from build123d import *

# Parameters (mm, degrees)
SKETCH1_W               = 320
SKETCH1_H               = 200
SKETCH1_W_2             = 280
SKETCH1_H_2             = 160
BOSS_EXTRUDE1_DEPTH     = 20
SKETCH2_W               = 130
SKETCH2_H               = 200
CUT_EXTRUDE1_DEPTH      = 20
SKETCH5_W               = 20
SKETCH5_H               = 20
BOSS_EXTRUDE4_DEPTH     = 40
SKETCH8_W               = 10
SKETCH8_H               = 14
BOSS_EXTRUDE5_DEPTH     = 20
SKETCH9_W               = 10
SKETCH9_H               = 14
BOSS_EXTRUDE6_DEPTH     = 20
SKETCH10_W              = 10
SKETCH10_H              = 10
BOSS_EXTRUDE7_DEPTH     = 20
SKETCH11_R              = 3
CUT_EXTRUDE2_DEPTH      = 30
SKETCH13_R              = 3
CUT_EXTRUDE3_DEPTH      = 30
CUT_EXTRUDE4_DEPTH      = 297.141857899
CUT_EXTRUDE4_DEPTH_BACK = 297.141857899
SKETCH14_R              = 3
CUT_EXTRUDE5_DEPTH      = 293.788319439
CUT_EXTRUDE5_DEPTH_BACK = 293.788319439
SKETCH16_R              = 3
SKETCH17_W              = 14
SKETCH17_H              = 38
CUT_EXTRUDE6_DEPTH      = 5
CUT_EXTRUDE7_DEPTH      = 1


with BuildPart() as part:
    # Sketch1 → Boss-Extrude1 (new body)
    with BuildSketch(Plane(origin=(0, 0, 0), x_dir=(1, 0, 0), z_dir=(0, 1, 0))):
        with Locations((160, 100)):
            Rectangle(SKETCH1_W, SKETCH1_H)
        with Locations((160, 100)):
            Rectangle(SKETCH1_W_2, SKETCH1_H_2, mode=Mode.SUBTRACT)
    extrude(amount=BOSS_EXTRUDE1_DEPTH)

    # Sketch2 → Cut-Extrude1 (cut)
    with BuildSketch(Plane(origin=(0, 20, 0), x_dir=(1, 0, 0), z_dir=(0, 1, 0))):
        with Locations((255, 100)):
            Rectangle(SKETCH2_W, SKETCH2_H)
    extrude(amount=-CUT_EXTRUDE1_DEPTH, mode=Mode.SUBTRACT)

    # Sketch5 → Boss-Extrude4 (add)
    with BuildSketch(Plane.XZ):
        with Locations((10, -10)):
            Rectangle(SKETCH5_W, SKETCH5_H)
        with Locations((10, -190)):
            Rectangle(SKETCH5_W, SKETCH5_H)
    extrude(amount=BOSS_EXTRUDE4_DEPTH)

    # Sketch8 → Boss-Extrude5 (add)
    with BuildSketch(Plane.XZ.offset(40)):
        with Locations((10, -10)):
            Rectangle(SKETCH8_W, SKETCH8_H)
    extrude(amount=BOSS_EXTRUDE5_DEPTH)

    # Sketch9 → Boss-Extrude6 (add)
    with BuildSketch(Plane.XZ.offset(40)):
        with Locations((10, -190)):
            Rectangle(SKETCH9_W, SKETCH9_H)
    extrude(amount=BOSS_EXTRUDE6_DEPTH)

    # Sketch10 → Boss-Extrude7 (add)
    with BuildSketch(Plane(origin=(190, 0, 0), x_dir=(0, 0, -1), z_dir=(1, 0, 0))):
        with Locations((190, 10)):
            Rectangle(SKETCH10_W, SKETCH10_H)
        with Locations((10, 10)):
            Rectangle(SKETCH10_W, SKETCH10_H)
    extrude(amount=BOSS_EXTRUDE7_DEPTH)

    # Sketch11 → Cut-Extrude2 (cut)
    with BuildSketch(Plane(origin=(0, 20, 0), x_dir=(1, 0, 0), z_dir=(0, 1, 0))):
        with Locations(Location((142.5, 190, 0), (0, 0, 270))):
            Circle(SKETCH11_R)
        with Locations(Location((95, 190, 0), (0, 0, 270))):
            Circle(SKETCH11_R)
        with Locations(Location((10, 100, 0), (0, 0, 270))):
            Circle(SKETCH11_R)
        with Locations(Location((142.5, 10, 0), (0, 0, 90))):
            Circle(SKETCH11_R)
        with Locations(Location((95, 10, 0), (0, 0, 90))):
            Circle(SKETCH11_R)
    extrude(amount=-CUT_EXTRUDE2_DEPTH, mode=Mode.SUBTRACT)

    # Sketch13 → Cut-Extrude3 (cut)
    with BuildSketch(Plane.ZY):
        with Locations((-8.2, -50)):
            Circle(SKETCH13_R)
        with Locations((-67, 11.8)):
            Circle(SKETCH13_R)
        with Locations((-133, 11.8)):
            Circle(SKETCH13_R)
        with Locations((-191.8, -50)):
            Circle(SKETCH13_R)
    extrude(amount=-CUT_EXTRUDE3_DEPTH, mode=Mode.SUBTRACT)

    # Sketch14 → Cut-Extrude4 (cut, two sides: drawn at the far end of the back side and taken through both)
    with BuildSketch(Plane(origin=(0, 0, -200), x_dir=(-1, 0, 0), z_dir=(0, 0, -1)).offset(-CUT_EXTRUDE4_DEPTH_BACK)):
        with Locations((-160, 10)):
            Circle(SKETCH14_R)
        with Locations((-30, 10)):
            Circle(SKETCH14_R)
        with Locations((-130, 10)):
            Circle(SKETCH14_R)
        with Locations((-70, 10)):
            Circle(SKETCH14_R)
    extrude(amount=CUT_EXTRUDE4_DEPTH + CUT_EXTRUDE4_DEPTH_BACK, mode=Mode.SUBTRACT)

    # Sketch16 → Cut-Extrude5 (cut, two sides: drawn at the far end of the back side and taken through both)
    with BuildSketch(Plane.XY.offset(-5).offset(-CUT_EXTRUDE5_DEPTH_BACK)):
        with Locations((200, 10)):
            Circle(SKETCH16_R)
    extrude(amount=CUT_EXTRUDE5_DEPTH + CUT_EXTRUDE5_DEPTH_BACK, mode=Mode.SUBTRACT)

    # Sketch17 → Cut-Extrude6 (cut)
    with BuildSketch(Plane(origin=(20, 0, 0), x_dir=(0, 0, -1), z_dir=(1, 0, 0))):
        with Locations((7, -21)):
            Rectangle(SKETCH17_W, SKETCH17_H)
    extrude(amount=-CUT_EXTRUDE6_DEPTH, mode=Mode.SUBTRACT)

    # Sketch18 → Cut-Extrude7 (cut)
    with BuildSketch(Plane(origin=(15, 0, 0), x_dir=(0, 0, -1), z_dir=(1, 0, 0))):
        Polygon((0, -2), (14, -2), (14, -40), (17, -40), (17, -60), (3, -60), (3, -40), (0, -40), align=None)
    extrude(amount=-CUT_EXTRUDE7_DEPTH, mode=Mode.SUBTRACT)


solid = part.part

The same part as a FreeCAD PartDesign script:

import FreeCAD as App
import Part
import Sketcher
Q = App.Units.Quantity


def add_polygon(sketch, points):
    """Adds a closed chain of lines whose ends are joined by coincident constraints."""
    first, n = sketch.GeometryCount, len(points)
    for a, b in zip(points, points[1:] + points[:1]):
        sketch.addGeometry(Part.LineSegment(App.Vector(*a, 0), App.Vector(*b, 0)), False)
    for i in range(n):
        sketch.addConstraint(Sketcher.Constraint("Coincident", first + i, 2, first + (i + 1) % n, 1))

doc = App.newDocument("Part")
body = doc.addObject("PartDesign::Body", "Body")

sketch1 = body.newObject("Sketcher::SketchObject", "Sketch")
sketch1.AttachmentSupport = (doc.getObject("XZ_Plane"), [""])
sketch1.MapMode = "FlatFace"
add_polygon(sketch1, [(0, -200), (0, 0), (320, 0), (320, -200)])
add_polygon(sketch1, [(300, -20), (20, -20), (20, -180), (300, -180)])
sketch1.addConstraint([
    Sketcher.Constraint("Vertical", 0),
    Sketcher.Constraint("Horizontal", 1),
    Sketcher.Constraint("Vertical", 2),
    Sketcher.Constraint("Horizontal", 3),
    Sketcher.Constraint("Horizontal", 4),
    Sketcher.Constraint("Vertical", 5),
    Sketcher.Constraint("Horizontal", 6),
    Sketcher.Constraint("Vertical", 7),
    Sketcher.Constraint("Coincident", 0, 2, -1, 1),
    Sketcher.Constraint("DistanceX", 1, 1, 1, 2, Q("320 mm")),
    Sketcher.Constraint("DistanceX", 4, 2, 4, 1, Q("280 mm")),
    Sketcher.Constraint("DistanceY", 0, 1, 0, 2, Q("200 mm")),
    Sketcher.Constraint("DistanceY", 5, 2, 5, 1, Q("160 mm")),
    Sketcher.Constraint("DistanceX", -1, 1, 4, 2, Q("20 mm")),
    Sketcher.Constraint("DistanceY", 4, 2, -1, 1, Q("20 mm")),
])
pad1 = body.newObject("PartDesign::Pad", "Pad")
pad1.Profile = sketch1
pad1.Length = 20
pad1.Reversed = True

sketch2 = body.newObject("Sketcher::SketchObject", "Sketch001")
sketch2.AttachmentSupport = (doc.getObject("XZ_Plane"), [""])
sketch2.MapMode = "FlatFace"
sketch2.AttachmentOffset = App.Placement(App.Vector(0, 0, -20), App.Rotation())
add_polygon(sketch2, [(190, -200), (190, 0), (320, 0), (320, -200)])
sketch2.addConstraint([
    Sketcher.Constraint("Vertical", 0),
    Sketcher.Constraint("Horizontal", 1),
    Sketcher.Constraint("Vertical", 2),
    Sketcher.Constraint("Horizontal", 3),
    Sketcher.Constraint("PointOnObject", 0, 2, -1),
    Sketcher.Constraint("DistanceX", 1, 1, 1, 2, Q("130 mm")),
    Sketcher.Constraint("DistanceY", 0, 1, 0, 2, Q("200 mm")),
    Sketcher.Constraint("DistanceX", -1, 1, 0, 2, Q("190 mm")),
])
pocket1 = body.newObject("PartDesign::Pocket", "Pocket")
pocket1.Profile = sketch2
pocket1.Length = 20
pocket1.Reversed = True

sketch3 = body.newObject("Sketcher::SketchObject", "Sketch002")
sketch3.AttachmentSupport = (doc.getObject("XZ_Plane"), [""])
sketch3.MapMode = "FlatFace"
add_polygon(sketch3, [(0, 0), (0, -20), (20, -20), (20, 0)])
add_polygon(sketch3, [(0, -180), (0, -200), (20, -200), (20, -180)])
sketch3.addConstraint([
    Sketcher.Constraint("Vertical", 0),
    Sketcher.Constraint("Horizontal", 1),
    Sketcher.Constraint("Vertical", 2),
    Sketcher.Constraint("Horizontal", 3),
    Sketcher.Constraint("Vertical", 4),
    Sketcher.Constraint("Horizontal", 5),
    Sketcher.Constraint("Vertical", 6),
    Sketcher.Constraint("Horizontal", 7),
    Sketcher.Constraint("Coincident", 3, 2, -1, 1),
    Sketcher.Constraint("PointOnObject", 4, 2, -2),
    Sketcher.Constraint("Vertical", 2, 2, 5, 2),
    Sketcher.Constraint("Equal", 7, 0),
    Sketcher.Constraint("Equal", 2, 4),
    Sketcher.Constraint("DistanceX", 1, 1, 1, 2, Q("20 mm")),
    Sketcher.Constraint("DistanceY", 4, 2, -1, 1, Q("200 mm")),
])
pad2 = body.newObject("PartDesign::Pad", "Pad001")
pad2.Profile = sketch3
pad2.Length = 40

sketch4 = body.newObject("Sketcher::SketchObject", "Sketch003")
sketch4.AttachmentSupport = (doc.getObject("XZ_Plane"), [""])
sketch4.MapMode = "FlatFace"
sketch4.AttachmentOffset = App.Placement(App.Vector(0, 0, 40), App.Rotation())
add_polygon(sketch4, [(5, -3), (5, -17), (15, -17), (15, -3)])
sketch4.addConstraint([
    Sketcher.Constraint("Vertical", 0),
    Sketcher.Constraint("Horizontal", 1),
    Sketcher.Constraint("Vertical", 2),
    Sketcher.Constraint("Horizontal", 3),
    Sketcher.Constraint("DistanceX", 1, 1, 1, 2, Q("10 mm")),
    Sketcher.Constraint("DistanceY", 0, 2, 0, 1, Q("14 mm")),
    Sketcher.Constraint("DistanceX", -1, 1, 0, 2, Q("5 mm")),
    Sketcher.Constraint("DistanceY", 0, 2, -1, 1, Q("17 mm")),
])
pad3 = body.newObject("PartDesign::Pad", "Pad002")
pad3.Profile = sketch4
pad3.Length = 20

sketch5 = body.newObject("Sketcher::SketchObject", "Sketch004")
sketch5.AttachmentSupport = (doc.getObject("XZ_Plane"), [""])
sketch5.MapMode = "FlatFace"
sketch5.AttachmentOffset = App.Placement(App.Vector(0, 0, 40), App.Rotation())
add_polygon(sketch5, [(5, -183), (5, -197), (15, -197), (15, -183)])
sketch5.addConstraint([
    Sketcher.Constraint("Vertical", 0),
    Sketcher.Constraint("Horizontal", 1),
    Sketcher.Constraint("Vertical", 2),
    Sketcher.Constraint("Horizontal", 3),
    Sketcher.Constraint("DistanceX", 1, 1, 1, 2, Q("10 mm")),
    Sketcher.Constraint("DistanceY", 0, 2, 0, 1, Q("14 mm")),
    Sketcher.Constraint("DistanceX", -1, 1, 0, 2, Q("5 mm")),
    Sketcher.Constraint("DistanceY", 0, 2, -1, 1, Q("197 mm")),
])
pad4 = body.newObject("PartDesign::Pad", "Pad003")
pad4.Profile = sketch5
pad4.Length = 20

sketch6 = body.newObject("Sketcher::SketchObject", "Sketch005")
sketch6.AttachmentSupport = (doc.getObject("YZ_Plane"), [""])
sketch6.MapMode = "FlatFace"
sketch6.AttachmentOffset = App.Placement(App.Vector(0, 0, 190), App.Rotation())
add_polygon(sketch6, [(15, -185), (5, -185), (5, -195), (15, -195)])
add_polygon(sketch6, [(15, -5), (5, -5), (5, -15), (15, -15)])
sketch6.addConstraint([
    Sketcher.Constraint("Horizontal", 0),
    Sketcher.Constraint("Vertical", 1),
    Sketcher.Constraint("Horizontal", 2),
    Sketcher.Constraint("Vertical", 3),
    Sketcher.Constraint("Horizontal", 4),
    Sketcher.Constraint("Vertical", 5),
    Sketcher.Constraint("Horizontal", 6),
    Sketcher.Constraint("Vertical", 7),
    Sketcher.Constraint("Vertical", 1, 2, 4, 2),
    Sketcher.Constraint("Vertical", 3, 2, 6, 2),
    Sketcher.Constraint("Equal", 6, 1),
    Sketcher.Constraint("Equal", 3, 5),
    Sketcher.Constraint("DistanceX", 0, 2, 0, 1, Q("10 mm")),
    Sketcher.Constraint("DistanceX", -1, 1, 0, 2, Q("5 mm")),
    Sketcher.Constraint("DistanceY", 0, 2, -1, 1, Q("185 mm")),
    Sketcher.Constraint("DistanceY", 4, 2, -1, 1, Q("5 mm")),
])
pad5 = body.newObject("PartDesign::Pad", "Pad004")
pad5.Profile = sketch6
pad5.Length = 20

sketch7 = body.newObject("Sketcher::SketchObject", "Sketch006")
sketch7.AttachmentSupport = (doc.getObject("XZ_Plane"), [""])
sketch7.MapMode = "FlatFace"
sketch7.AttachmentOffset = App.Placement(App.Vector(0, 0, -20), App.Rotation())
sketch7.addGeometry([
    Part.Circle(App.Vector(142.5, -190, 0), App.Vector(0, 0, 1), 3),
    Part.Circle(App.Vector(95, -190, 0), App.Vector(0, 0, 1), 3),
    Part.Circle(App.Vector(10, -100, 0), App.Vector(0, 0, 1), 3),
    Part.Circle(App.Vector(142.5, -10, 0), App.Vector(0, 0, 1), 3),
    Part.Circle(App.Vector(95, -10, 0), App.Vector(0, 0, 1), 3),
], False)
sketch7.addConstraint([
    Sketcher.Constraint("Equal", 0, 1),
    Sketcher.Constraint("Equal", 1, 2),
    Sketcher.Constraint("Equal", 2, 3),
    Sketcher.Constraint("Equal", 3, 4),
    Sketcher.Constraint("Horizontal", 0, 3, 1, 3),
    Sketcher.Constraint("Horizontal", 3, 3, 4, 3),
    Sketcher.Constraint("Vertical", 0, 3, 3, 3),
    Sketcher.Constraint("Vertical", 1, 3, 4, 3),
    Sketcher.Constraint("Diameter", 0, Q("6 mm")),
    Sketcher.Constraint("DistanceY", 0, 3, -1, 1, Q("190 mm")),
    Sketcher.Constraint("DistanceX", -1, 1, 1, 3, Q("95 mm")),
    Sketcher.Constraint("DistanceX", -1, 1, 2, 3, Q("10 mm")),
    Sketcher.Constraint("DistanceY", 2, 3, -1, 1, Q("100 mm")),
    Sketcher.Constraint("DistanceY", 3, 3, -1, 1, Q("10 mm")),
    Sketcher.Constraint("DistanceX", -1, 1, 0, 3, Q("142.5 mm")),
])
pocket2 = body.newObject("PartDesign::Pocket", "Pocket001")
pocket2.Profile = sketch7
pocket2.Length = 30
pocket2.Reversed = True

sketch8 = body.newObject("Sketcher::SketchObject", "Sketch007")
sketch8.AttachmentSupport = (doc.getObject("YZ_Plane"), [""])
sketch8.MapMode = "FlatFace"
sketch8.addGeometry([
    Part.Circle(App.Vector(-50, -8.2, 0), App.Vector(0, 0, 1), 3),
    Part.Circle(App.Vector(11.8, -67, 0), App.Vector(0, 0, 1), 3),
    Part.Circle(App.Vector(11.8, -133, 0), App.Vector(0, 0, 1), 3),
    Part.Circle(App.Vector(-50, -191.8, 0), App.Vector(0, 0, 1), 3),
], False)
sketch8.addConstraint([
    Sketcher.Constraint("Equal", 0, 1),
    Sketcher.Constraint("Equal", 1, 2),
    Sketcher.Constraint("Equal", 2, 3),
    Sketcher.Constraint("Vertical", 1, 3, 2, 3),
    Sketcher.Constraint("Vertical", 0, 3, 3, 3),
    Sketcher.Constraint("Diameter", 0, Q("6 mm")),
    Sketcher.Constraint("DistanceX", 0, 3, -1, 1, Q("50 mm")),
    Sketcher.Constraint("DistanceY", 1, 3, -1, 1, Q("67 mm")),
    Sketcher.Constraint("DistanceY", 2, 3, -1, 1, Q("133 mm")),
    Sketcher.Constraint("DistanceY", 0, 3, -1, 1, Q("8.2 mm")),
    Sketcher.Constraint("DistanceX", -1, 1, 1, 3, Q("11.8 mm")),
    Sketcher.Constraint("DistanceY", 3, 3, -1, 1, Q("191.8 mm")),
])
pocket3 = body.newObject("PartDesign::Pocket", "Pocket002")
pocket3.Profile = sketch8
pocket3.Length = 30
pocket3.Reversed = True

sketch9 = body.newObject("Sketcher::SketchObject", "Sketch008")
sketch9.AttachmentSupport = (doc.getObject("XY_Plane"), [""])
sketch9.MapMode = "FlatFace"
sketch9.AttachmentOffset = App.Placement(App.Vector(0, 0, -200), App.Rotation())
sketch9.addGeometry([
    Part.Circle(App.Vector(160, 10, 0), App.Vector(0, 0, 1), 3),
    Part.Circle(App.Vector(30, 10, 0), App.Vector(0, 0, 1), 3),
    Part.Circle(App.Vector(130, 10, 0), App.Vector(0, 0, 1), 3),
    Part.Circle(App.Vector(70, 10, 0), App.Vector(0, 0, 1), 3),
], False)
sketch9.addConstraint([
    Sketcher.Constraint("Equal", 0, 1),
    Sketcher.Constraint("Equal", 1, 2),
    Sketcher.Constraint("Equal", 2, 3),
    Sketcher.Constraint("Horizontal", 0, 3, 1, 3),
    Sketcher.Constraint("Horizontal", 1, 3, 2, 3),
    Sketcher.Constraint("Horizontal", 2, 3, 3, 3),
    Sketcher.Constraint("Diameter", 0, Q("6 mm")),
    Sketcher.Constraint("DistanceX", -1, 1, 0, 3, Q("160 mm")),
    Sketcher.Constraint("DistanceY", -1, 1, 0, 3, Q("10 mm")),
    Sketcher.Constraint("DistanceX", -1, 1, 1, 3, Q("30 mm")),
    Sketcher.Constraint("DistanceX", -1, 1, 2, 3, Q("130 mm")),
    Sketcher.Constraint("DistanceX", -1, 1, 3, 3, Q("70 mm")),
])
pocket4 = body.newObject("PartDesign::Pocket", "Pocket003")
pocket4.Profile = sketch9
pocket4.Type = "ThroughAll"
pocket4.Midplane = True

sketch10 = body.newObject("Sketcher::SketchObject", "Sketch009")
sketch10.AttachmentSupport = (doc.getObject("XY_Plane"), [""])
sketch10.MapMode = "FlatFace"
sketch10.AttachmentOffset = App.Placement(App.Vector(0, 0, -5), App.Rotation())
sketch10.addGeometry(Part.Circle(App.Vector(200, 10, 0), App.Vector(0, 0, 1), 3), False)
sketch10.addConstraint([
    Sketcher.Constraint("Diameter", 0, Q("6 mm")),
    Sketcher.Constraint("DistanceX", -1, 1, 0, 3, Q("200 mm")),
    Sketcher.Constraint("DistanceY", -1, 1, 0, 3, Q("10 mm")),
])
pocket5 = body.newObject("PartDesign::Pocket", "Pocket004")
pocket5.Profile = sketch10
pocket5.Type = "ThroughAll"
pocket5.Midplane = True

sketch11 = body.newObject("Sketcher::SketchObject", "Sketch010")
sketch11.AttachmentSupport = (doc.getObject("YZ_Plane"), [""])
sketch11.MapMode = "FlatFace"
sketch11.AttachmentOffset = App.Placement(App.Vector(0, 0, 20), App.Rotation())
add_polygon(sketch11, [(-2, 0), (-40, 0), (-40, -14), (-2, -14)])
sketch11.addConstraint([
    Sketcher.Constraint("Horizontal", 0),
    Sketcher.Constraint("Vertical", 1),
    Sketcher.Constraint("Horizontal", 2),
    Sketcher.Constraint("Vertical", 3),
    Sketcher.Constraint("PointOnObject", 0, 2, -1),
    Sketcher.Constraint("DistanceX", 0, 2, 0, 1, Q("38 mm")),
    Sketcher.Constraint("DistanceY", 1, 2, 1, 1, Q("14 mm")),
    Sketcher.Constraint("DistanceX", 0, 2, -1, 1, Q("40 mm")),
])
pocket6 = body.newObject("PartDesign::Pocket", "Pocket005")
pocket6.Profile = sketch11
pocket6.Length = 5

sketch12 = body.newObject("Sketcher::SketchObject", "Sketch011")
sketch12.AttachmentSupport = (doc.getObject("YZ_Plane"), [""])
sketch12.MapMode = "FlatFace"
sketch12.AttachmentOffset = App.Placement(App.Vector(0, 0, 15), App.Rotation())
add_polygon(sketch12, [(-2, -14), (-2, 0), (-40, 0), (-40, -3), (-60, -3), (-60, -17), (-40, -17), (-40, -14)])
sketch12.addConstraint([
    Sketcher.Constraint("Vertical", 0),
    Sketcher.Constraint("Horizontal", 1),
    Sketcher.Constraint("Vertical", 2),
    Sketcher.Constraint("Horizontal", 3),
    Sketcher.Constraint("Vertical", 4),
    Sketcher.Constraint("Horizontal", 5),
    Sketcher.Constraint("Vertical", 6),
    Sketcher.Constraint("Horizontal", 7),
    Sketcher.Constraint("PointOnObject", 0, 2, -1),
    Sketcher.Constraint("Vertical", 2, 2, 5, 2),
    Sketcher.Constraint("Equal", 0, 4),
    Sketcher.Constraint("DistanceX", 1, 2, 1, 1, Q("38 mm")),
    Sketcher.Constraint("DistanceX", 3, 2, 3, 1, Q("20 mm")),
    Sketcher.Constraint("DistanceY", 0, 1, 0, 2, Q("14 mm")),
    Sketcher.Constraint("DistanceY", 2, 2, 2, 1, Q("3 mm")),
    Sketcher.Constraint("DistanceX", 0, 2, -1, 1, Q("2 mm")),
])
pocket7 = body.newObject("PartDesign::Pocket", "Pocket006")
pocket7.Profile = sketch12
pocket7.Length = 1

doc.recompute()
